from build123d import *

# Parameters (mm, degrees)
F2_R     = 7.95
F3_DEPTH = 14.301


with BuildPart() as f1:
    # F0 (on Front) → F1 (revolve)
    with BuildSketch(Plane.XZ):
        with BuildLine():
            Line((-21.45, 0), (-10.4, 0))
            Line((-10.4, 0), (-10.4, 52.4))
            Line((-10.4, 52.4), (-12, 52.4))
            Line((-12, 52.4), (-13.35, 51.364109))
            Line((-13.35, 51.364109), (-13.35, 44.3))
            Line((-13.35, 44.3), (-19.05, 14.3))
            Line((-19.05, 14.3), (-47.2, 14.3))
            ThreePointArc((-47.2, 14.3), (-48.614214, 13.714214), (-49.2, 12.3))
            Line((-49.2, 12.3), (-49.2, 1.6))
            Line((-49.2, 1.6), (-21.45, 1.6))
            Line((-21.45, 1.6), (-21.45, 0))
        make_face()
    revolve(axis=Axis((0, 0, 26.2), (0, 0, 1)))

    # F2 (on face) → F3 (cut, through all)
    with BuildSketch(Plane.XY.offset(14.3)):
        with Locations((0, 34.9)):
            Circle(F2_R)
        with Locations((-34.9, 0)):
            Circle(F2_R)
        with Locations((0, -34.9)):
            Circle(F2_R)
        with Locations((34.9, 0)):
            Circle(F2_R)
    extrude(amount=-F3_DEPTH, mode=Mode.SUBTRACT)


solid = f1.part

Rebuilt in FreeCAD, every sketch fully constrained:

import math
import FreeCAD as App
import Part
import Sketcher
Q = App.Units.Quantity

doc = App.newDocument("Part")
params = doc.addObject("Spreadsheet::Sheet", "Params")
for row, (alias, value) in enumerate([
    ("sketch1_radius", "1.999999 mm"),
    ("sketch1_width", "1.6 mm"),
    ("sketch1_height", "52.4 mm"),
    ("sketch1_height2", "10.7 mm"),
    ("sketch1_width2", "11.05 mm"),
    ("revolution_angle", "360 deg"),
    ("sketch2_diameter", "15.9 mm"),
], start=1):
    params.set(f"A{row}", alias)
    params.set(f"B{row}", "=" + value)
    params.setAlias(f"B{row}", alias)

body = doc.addObject("PartDesign::Body", "Body")

# Sketch on XZ plane
sketch1 = doc.addObject("Sketcher::SketchObject", "Sketch")
body.addObject(sketch1)
sketch1.AttachmentSupport = (doc.XZ_Plane, [""])
sketch1.MapMode = "FlatFace"
sketch1.addGeometry([
    Part.LineSegment(App.Vector(-21.45, 0, 0), App.Vector(-10.4, 0, 0)),  # 0
    Part.LineSegment(App.Vector(-10.4, 0, 0), App.Vector(-10.4, 52.4, 0)),  # 1
    Part.LineSegment(App.Vector(-10.4, 52.4, 0), App.Vector(-12, 52.4, 0)),  # 2
    Part.LineSegment(App.Vector(-12, 52.4, 0), App.Vector(-13.35, 51.364109, 0)),  # 3
    Part.LineSegment(App.Vector(-13.35, 51.364109, 0), App.Vector(-13.35, 44.3, 0)),  # 4
    Part.LineSegment(App.Vector(-13.35, 44.3, 0), App.Vector(-19.05, 14.3, 0)),  # 5
    Part.LineSegment(App.Vector(-19.05, 14.3, 0), App.Vector(-47.2, 14.3, 0)),  # 6
    Part.ArcOfCircle(Part.Circle(App.Vector(-47.200001, 12.300001, 0), App.Vector(0, 0, 1), 1.999999), math.radians(89.999957), math.radians(180.000043)),  # 7
    Part.LineSegment(App.Vector(-49.2, 12.3, 0), App.Vector(-49.2, 1.6, 0)),  # 8
    Part.LineSegment(App.Vector(-49.2, 1.6, 0), App.Vector(-21.45, 1.6, 0)),  # 9
    Part.LineSegment(App.Vector(-21.45, 1.6, 0), App.Vector(-21.45, 0, 0)),  # 10
], False)
sketch1.addConstraint([
    Sketcher.Constraint("Coincident", 0, 2, 1, 1),
    Sketcher.Constraint("Coincident", 1, 2, 2, 1),
    Sketcher.Constraint("Coincident", 2, 2, 3, 1),
    Sketcher.Constraint("Coincident", 3, 2, 4, 1),
    Sketcher.Constraint("Coincident", 4, 2, 5, 1),
    Sketcher.Constraint("Coincident", 5, 2, 6, 1),
    Sketcher.Constraint("Tangent", 6, 2, 7, 1),
    Sketcher.Constraint("Tangent", 7, 2, 8, 1),
    Sketcher.Constraint("Coincident", 8, 2, 9, 1),
    Sketcher.Constraint("Coincident", 9, 2, 10, 1),
    Sketcher.Constraint("Coincident", 10, 2, 0, 1),
    Sketcher.Constraint("Horizontal", 0),
    Sketcher.Constraint("Vertical", 1),
    Sketcher.Constraint("Horizontal", 2),
    Sketcher.Constraint("Vertical", 4),
    Sketcher.Constraint("Horizontal", 6),
    Sketcher.Constraint("Vertical", 8),
    Sketcher.Constraint("Horizontal", 9),
    Sketcher.Constraint("Vertical", 10),
    Sketcher.Constraint("PointOnObject", 0, 2, -1),
    Sketcher.Constraint("Equal", 2, 10),
    Sketcher.Constraint("Radius", 7, Q("1.999999 mm")),
    Sketcher.Constraint("DistanceX", 2, 2, 2, 1, Q("1.6 mm")),
    Sketcher.Constraint("DistanceY", 1, 1, 1, 2, Q("52.4 mm")),
    Sketcher.Constraint("DistanceY", 8, 2, 8, 1, Q("10.7 mm")),
    Sketcher.Constraint("DistanceX", 2, 2, -1, 1, Q("12 mm")),
    Sketcher.Constraint("Angle", 3, Q("-142.500012 deg")),
    Sketcher.Constraint("DistanceY", 7, 3, 4, 2, Q("31.999999 mm")),
    Sketcher.Constraint("DistanceX", 0, 1, 0, 2, Q("11.05 mm")),
    Sketcher.Constraint("DistanceX", 6, 2, 6, 1, Q("28.15 mm")),
    Sketcher.Constraint("DistanceX", 9, 1, 9, 2, Q("27.75 mm")),
    Sketcher.Constraint("DistanceX", 5, 2, 4, 2, Q("5.7 mm")),
])
sketch1.setExpression("Constraints[21]", "Params.sketch1_radius")
sketch1.setExpression("Constraints[22]", "Params.sketch1_width")
sketch1.setExpression("Constraints[23]", "Params.sketch1_height")
sketch1.setExpression("Constraints[24]", "Params.sketch1_height2")
sketch1.setExpression("Constraints[28]", "Params.sketch1_width2")
revolution = doc.addObject("PartDesign::Revolution", "Revolution")
body.addObject(revolution)
revolution.Profile = sketch1
revolution.ReferenceAxis = (sketch1, ["V_Axis"])
revolution.setExpression("Angle", "Params.revolution_angle")

# Sketch on XY plane
sketch2 = doc.addObject("Sketcher::SketchObject", "Sketch001")
body.addObject(sketch2)
sketch2.AttachmentSupport = (doc.XY_Plane, [""])
sketch2.MapMode = "FlatFace"
sketch2.AttachmentOffset = App.Placement(App.Vector(0, 0, 14.3), App.Rotation())
sketch2.addGeometry([
    Part.Circle(App.Vector(0, 34.9, 0), App.Vector(0, 0, 1), 7.95),
    Part.Circle(App.Vector(-34.9, 0, 0), App.Vector(0, 0, 1), 7.95),
    Part.Circle(App.Vector(0, -34.9, 0), App.Vector(0, 0, 1), 7.95),
    Part.Circle(App.Vector(34.9, 0, 0), App.Vector(0, 0, 1), 7.95),
], False)
sketch2.addConstraint([
    Sketcher.Constraint("Equal", 0, 1),
    Sketcher.Constraint("Equal", 1, 2),
    Sketcher.Constraint("Equal", 2, 3),
    Sketcher.Constraint("Symmetric", 0, 3, 2, 3, -1, 1),
    Sketcher.Constraint("Symmetric", 1, 3, 3, 3, -1, 1),
    Sketcher.Constraint("PointOnObject", 0, 3, -2),
    Sketcher.Constraint("PointOnObject", 1, 3, -1),
    Sketcher.Constraint("Diameter", 0, Q("15.9 mm")),
    Sketcher.Constraint("DistanceY", -1, 1, 0, 3, Q("34.9 mm")),
    Sketcher.Constraint("DistanceX", 1, 3, -1, 1, Q("34.9 mm")),
])
sketch2.setExpression("Constraints[7]", "Params.sketch2_diameter")
pocket1 = doc.addObject("PartDesign::Pocket", "Pocket")
body.addObject(pocket1)
pocket1.Profile = sketch2
pocket1.Type = "ThroughAll"

doc.recompute()
